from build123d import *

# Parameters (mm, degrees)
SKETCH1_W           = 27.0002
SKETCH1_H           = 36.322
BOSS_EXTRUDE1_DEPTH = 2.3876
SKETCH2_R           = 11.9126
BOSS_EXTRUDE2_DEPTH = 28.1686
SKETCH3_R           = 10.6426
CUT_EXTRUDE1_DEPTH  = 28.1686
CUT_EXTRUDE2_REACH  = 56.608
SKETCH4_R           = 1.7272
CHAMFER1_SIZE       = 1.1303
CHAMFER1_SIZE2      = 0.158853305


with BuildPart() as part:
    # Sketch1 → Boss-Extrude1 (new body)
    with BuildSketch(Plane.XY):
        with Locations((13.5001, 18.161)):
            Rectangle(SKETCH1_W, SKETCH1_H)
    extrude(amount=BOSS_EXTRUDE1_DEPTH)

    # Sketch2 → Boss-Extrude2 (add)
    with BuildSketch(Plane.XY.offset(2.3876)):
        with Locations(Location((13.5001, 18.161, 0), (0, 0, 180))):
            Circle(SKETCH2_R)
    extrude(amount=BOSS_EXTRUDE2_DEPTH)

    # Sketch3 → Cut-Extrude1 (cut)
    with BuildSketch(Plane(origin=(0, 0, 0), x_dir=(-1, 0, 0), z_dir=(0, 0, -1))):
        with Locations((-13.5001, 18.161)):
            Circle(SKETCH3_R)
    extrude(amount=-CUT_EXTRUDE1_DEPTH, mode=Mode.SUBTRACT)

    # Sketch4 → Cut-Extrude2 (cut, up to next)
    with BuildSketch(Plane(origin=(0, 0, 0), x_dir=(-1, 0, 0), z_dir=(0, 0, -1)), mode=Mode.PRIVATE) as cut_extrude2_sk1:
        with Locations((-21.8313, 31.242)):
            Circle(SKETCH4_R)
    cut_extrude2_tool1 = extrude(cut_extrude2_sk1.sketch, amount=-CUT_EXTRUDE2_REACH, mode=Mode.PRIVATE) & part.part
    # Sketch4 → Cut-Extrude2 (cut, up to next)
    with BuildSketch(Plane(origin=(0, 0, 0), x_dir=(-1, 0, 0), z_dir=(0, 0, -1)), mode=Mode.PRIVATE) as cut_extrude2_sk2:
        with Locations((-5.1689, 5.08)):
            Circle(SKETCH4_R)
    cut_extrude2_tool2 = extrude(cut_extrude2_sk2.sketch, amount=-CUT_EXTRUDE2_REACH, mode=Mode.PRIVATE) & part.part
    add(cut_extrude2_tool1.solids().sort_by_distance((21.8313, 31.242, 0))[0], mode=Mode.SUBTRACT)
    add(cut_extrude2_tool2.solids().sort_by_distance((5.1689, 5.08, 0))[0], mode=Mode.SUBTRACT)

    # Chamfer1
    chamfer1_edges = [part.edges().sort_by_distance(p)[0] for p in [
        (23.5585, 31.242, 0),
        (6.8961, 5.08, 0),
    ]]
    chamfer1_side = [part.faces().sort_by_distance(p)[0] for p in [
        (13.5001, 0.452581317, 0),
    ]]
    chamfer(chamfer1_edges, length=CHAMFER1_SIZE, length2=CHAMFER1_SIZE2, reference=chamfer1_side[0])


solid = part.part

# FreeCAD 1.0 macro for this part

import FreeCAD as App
import Part
import Sketcher
Q = App.Units.Quantity


def edges_at(feature, points):
    """Names of the edges that pass closest to the given points."""
    edges = feature.Shape.Edges
    near = lambda p: min(range(len(edges)), key=lambda i: edges[i].distToShape(Part.Vertex(*p))[0])
    return sorted({f"Edge{near(p) + 1}" for p in points})

doc = App.newDocument("Part")
params = doc.addObject("Spreadsheet::Sheet", "Params")
for row, (alias, value) in enumerate([
    ("sketch1_height", "1.43 in"),
    ("sketch1_width", "1.063 in"),
    ("pad1_length", "0.094 in"),
    ("sketch2_diameter", "0.938 in"),
    ("pad2_length", "1.109 in"),
    ("sketch3_diameter", "0.838 in"),
    ("pocket1_length", "1.109 in"),
    ("sketch4_diameter", "0.136 in"),
    ("sketch5_diameter", "0.136 in"),
    ("chamfer_size", "0.0445 in"),
    ("chamfer_size2", "0.158853 mm"),
], start=1):
    params.set(f"A{row}", alias)
    params.set(f"B{row}", "=" + value)
    params.setAlias(f"B{row}", alias)

body = doc.addObject("PartDesign::Body", "Body")

sketch1 = body.newObject("Sketcher::SketchObject", "Sketch")
sketch1.AttachmentSupport = (doc.getObject("XY_Plane"), [""])
sketch1.MapMode = "FlatFace"
sketch1.addGeometry([
    Part.LineSegment(App.Vector(0, 36, 0), App.Vector(0, 0, 0)),
    Part.LineSegment(App.Vector(0, 0, 0), App.Vector(27, 0, 0)),
    Part.LineSegment(App.Vector(27, 0, 0), App.Vector(27, 36, 0)),
    Part.LineSegment(App.Vector(27, 36, 0), App.Vector(0, 36, 0)),
], False)
sketch1.addConstraint([
    Sketcher.Constraint("Coincident", 0, 2, 1, 1),
    Sketcher.Constraint("Coincident", 1, 2, 2, 1),
    Sketcher.Constraint("Coincident", 2, 2, 3, 1),
    Sketcher.Constraint("Coincident", 3, 2, 0, 1),
    Sketcher.Constraint("Vertical", 0),
    Sketcher.Constraint("Horizontal", 1),
    Sketcher.Constraint("Vertical", 2),
    Sketcher.Constraint("Horizontal", 3),
    Sketcher.Constraint("Coincident", 0, 2, -1, 1),
    Sketcher.Constraint("DistanceY", 0, 2, 0, 1, Q("1.43 in")),
    Sketcher.Constraint("DistanceX", 1, 1, 1, 2, Q("1.063 in")),
])
sketch1.setExpression("Constraints[9]", "Params.sketch1_height")
sketch1.setExpression("Constraints[10]", "Params.sketch1_width")
pad1 = body.newObject("PartDesign::Pad", "Pad")
pad1.Profile = sketch1
pad1.setExpression("Length", "Params.pad1_length")

sketch2 = body.newObject("Sketcher::SketchObject", "Sketch001")
sketch2.AttachmentSupport = (doc.getObject("XY_Plane"), [""])
sketch2.MapMode = "FlatFace"
sketch2.AttachmentOffset = App.Placement(App.Vector(0, 0, 0.094 * 25.4), App.Rotation())
sketch2.addGeometry(Part.Circle(App.Vector(14, 18, 0), App.Vector(0, 0, 1), 12), False)
sketch2.addConstraint([
    Sketcher.Constraint("Diameter", 0, Q("0.938 in")),
    Sketcher.Constraint("DistanceY", -1, 1, 0, 3, Q("0.715 in")),
    Sketcher.Constraint("DistanceX", -1, 1, 0, 3, Q("0.5315 in")),
])
sketch2.setExpression("Constraints[0]", "Params.sketch2_diameter")
pad2 = body.newObject("PartDesign::Pad", "Pad001")
pad2.Profile = sketch2
pad2.setExpression("Length", "Params.pad2_length")

sketch3 = body.newObject("Sketcher::SketchObject", "Sketch002")
sketch3.AttachmentSupport = (doc.getObject("XY_Plane"), [""])
sketch3.MapMode = "FlatFace"
sketch3.addGeometry(Part.Circle(App.Vector(14, 18, 0), App.Vector(0, 0, 1), 11), False)
sketch3.addConstraint([
    Sketcher.Constraint("Diameter", 0, Q("0.838 in")),
    Sketcher.Constraint("DistanceY", -1, 1, 0, 3, Q("0.715 in")),
    Sketcher.Constraint("DistanceX", -1, 1, 0, 3, Q("0.5315 in")),
])
sketch3.setExpression("Constraints[0]", "Params.sketch3_diameter")
pocket1 = body.newObject("PartDesign::Pocket", "Pocket")
pocket1.Profile = sketch3
pocket1.setExpression("Length", "Params.pocket1_length")
pocket1.Reversed = True

sketch4 = body.newObject("Sketcher::SketchObject", "Sketch003")
sketch4.AttachmentSupport = (doc.getObject("XY_Plane"), [""])
sketch4.MapMode = "FlatFace"
sketch4.addGeometry(Part.Circle(App.Vector(21.8, 31.2, 0), App.Vector(0, 0, 1), 1.7), False)
sketch4.addConstraint([
    Sketcher.Constraint("Diameter", 0, Q("0.136 in")),
    Sketcher.Constraint("DistanceY", -1, 1, 0, 3, Q("1.23 in")),
    Sketcher.Constraint("DistanceX", -1, 1, 0, 3, Q("0.8595 in")),
])
sketch4.setExpression("Constraints[0]", "Params.sketch4_diameter")
pocket2 = body.newObject("PartDesign::Pocket", "Pocket001")
pocket2.Profile = sketch4
pocket2.Type = "UpToFirst"
pocket2.Reversed = True

sketch5 = body.newObject("Sketcher::SketchObject", "Sketch004")
sketch5.AttachmentSupport = (doc.getObject("XY_Plane"), [""])
sketch5.MapMode = "FlatFace"
sketch5.addGeometry(Part.Circle(App.Vector(5.2, 5.1, 0), App.Vector(0, 0, 1), 1.7), False)
sketch5.addConstraint([
    Sketcher.Constraint("Diameter", 0, Q("0.136 in")),
    Sketcher.Constraint("DistanceY", -1, 1, 0, 3, Q("0.2 in")),
    Sketcher.Constraint("DistanceX", -1, 1, 0, 3, Q("0.2035 in")),
])
sketch5.setExpression("Constraints[0]", "Params.sketch5_diameter")
pocket3 = body.newObject("PartDesign::Pocket", "Pocket002")
pocket3.Profile = sketch5
pocket3.Type = "UpToFirst"
pocket3.Reversed = True
doc.recompute()

chamfer = body.newObject("PartDesign::Chamfer", "Chamfer")
chamfer.Base = (pocket3, edges_at(pocket3, [(23.558, 31.242, 0), (6.896, 5.08, 0)]))
chamfer.ChamferType = "Two distances"
chamfer.setExpression("Size", "Params.chamfer_size")
chamfer.setExpression("Size2", "Params.chamfer_size2")

doc.recompute()
